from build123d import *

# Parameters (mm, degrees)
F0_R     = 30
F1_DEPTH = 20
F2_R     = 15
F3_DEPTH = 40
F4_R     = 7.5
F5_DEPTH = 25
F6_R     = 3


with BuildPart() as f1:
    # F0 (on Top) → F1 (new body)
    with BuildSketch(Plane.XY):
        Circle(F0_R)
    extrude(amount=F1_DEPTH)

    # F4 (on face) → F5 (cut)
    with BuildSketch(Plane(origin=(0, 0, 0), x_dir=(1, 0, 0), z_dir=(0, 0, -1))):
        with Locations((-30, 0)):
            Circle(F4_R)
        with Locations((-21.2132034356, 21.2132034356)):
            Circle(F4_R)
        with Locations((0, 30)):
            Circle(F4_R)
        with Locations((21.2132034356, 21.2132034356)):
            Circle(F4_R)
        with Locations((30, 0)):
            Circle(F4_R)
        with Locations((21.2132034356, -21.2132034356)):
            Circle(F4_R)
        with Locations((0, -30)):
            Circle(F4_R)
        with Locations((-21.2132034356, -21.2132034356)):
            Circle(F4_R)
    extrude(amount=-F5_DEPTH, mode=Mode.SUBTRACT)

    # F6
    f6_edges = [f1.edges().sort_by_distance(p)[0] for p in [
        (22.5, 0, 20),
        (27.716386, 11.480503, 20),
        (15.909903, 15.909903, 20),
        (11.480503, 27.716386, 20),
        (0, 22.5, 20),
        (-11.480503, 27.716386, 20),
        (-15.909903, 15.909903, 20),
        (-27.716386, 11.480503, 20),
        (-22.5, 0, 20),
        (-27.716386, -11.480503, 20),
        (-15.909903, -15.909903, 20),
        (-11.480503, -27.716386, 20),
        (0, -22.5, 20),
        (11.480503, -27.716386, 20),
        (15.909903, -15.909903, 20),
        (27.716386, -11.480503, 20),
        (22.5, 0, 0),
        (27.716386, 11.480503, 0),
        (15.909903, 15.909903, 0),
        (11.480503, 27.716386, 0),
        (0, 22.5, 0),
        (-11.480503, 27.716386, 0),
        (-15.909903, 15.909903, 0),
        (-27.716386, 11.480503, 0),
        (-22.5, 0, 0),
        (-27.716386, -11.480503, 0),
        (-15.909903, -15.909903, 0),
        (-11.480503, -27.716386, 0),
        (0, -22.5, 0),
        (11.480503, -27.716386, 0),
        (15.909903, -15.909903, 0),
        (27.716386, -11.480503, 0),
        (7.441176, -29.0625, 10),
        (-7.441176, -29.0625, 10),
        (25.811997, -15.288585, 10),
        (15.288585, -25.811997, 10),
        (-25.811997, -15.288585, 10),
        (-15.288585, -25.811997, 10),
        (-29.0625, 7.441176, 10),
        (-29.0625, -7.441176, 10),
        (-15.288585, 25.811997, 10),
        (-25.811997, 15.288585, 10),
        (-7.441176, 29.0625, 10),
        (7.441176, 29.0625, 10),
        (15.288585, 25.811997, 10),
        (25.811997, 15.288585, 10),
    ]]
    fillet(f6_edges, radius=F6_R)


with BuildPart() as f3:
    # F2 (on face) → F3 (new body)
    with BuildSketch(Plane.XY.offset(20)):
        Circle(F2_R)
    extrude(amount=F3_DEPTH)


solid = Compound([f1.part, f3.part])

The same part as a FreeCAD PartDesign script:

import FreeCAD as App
import Part
import Sketcher


def edges_at(feature, points):
    """Names of the edges that pass closest to the given points."""
    edges = feature.Shape.Edges
    near = lambda p: min(range(len(edges)), key=lambda i: edges[i].distToShape(Part.Vertex(*p))[0])
    return sorted({f"Edge{near(p) + 1}" for p in points})

doc = App.newDocument("Part")
body = doc.addObject("PartDesign::Body", "Body")

sketch1 = doc.addObject("Sketcher::SketchObject", "Sketch")
body.addObject(sketch1)
sketch1.AttachmentSupport = (doc.XY_Plane, [""])
sketch1.MapMode = "FlatFace"
sketch1.addGeometry(Part.Circle(App.Vector(0, 0, 0), App.Vector(0, 0, 1), 30), False)
sketch1.addConstraint([
    Sketcher.Constraint("Coincident", 0, 3, -1, 1),
    Sketcher.Constraint("Diameter", 0, 60.0),
])
pad1 = doc.addObject("PartDesign::Pad", "Pad")
body.addObject(pad1)
pad1.Profile = sketch1
pad1.Length = 20

sketch2 = doc.addObject("Sketcher::SketchObject", "Sketch001")
body.addObject(sketch2)
sketch2.AttachmentSupport = (doc.XY_Plane, [""])
sketch2.MapMode = "FlatFace"
sketch2.addGeometry([
    Part.Circle(App.Vector(-30, 0, 0), App.Vector(0, 0, 1), 8),
    Part.Circle(App.Vector(-21, -21, 0), App.Vector(0, 0, 1), 8),
    Part.Circle(App.Vector(0, -30, 0), App.Vector(0, 0, 1), 8),
    Part.Circle(App.Vector(21, -21, 0), App.Vector(0, 0, 1), 8),
    Part.Circle(App.Vector(30, 0, 0), App.Vector(0, 0, 1), 8),
    Part.Circle(App.Vector(21, 21, 0), App.Vector(0, 0, 1), 8),
    Part.Circle(App.Vector(0, 30, 0), App.Vector(0, 0, 1), 8),
    Part.Circle(App.Vector(-21, 21, 0), App.Vector(0, 0, 1), 8),
], False)
sketch2.addConstraint([
    Sketcher.Constraint("Equal", 0, 1),
    Sketcher.Constraint("Equal", 1, 2),
    Sketcher.Constraint("Equal", 2, 3),
    Sketcher.Constraint("Equal", 3, 4),
    Sketcher.Constraint("Equal", 4, 5),
    Sketcher.Constraint("Equal", 5, 6),
    Sketcher.Constraint("Equal", 6, 7),
    Sketcher.Constraint("Symmetric", 0, 3, 4, 3, -1, 1),
    Sketcher.Constraint("Symmetric", 1, 3, 5, 3, -1, 1),
    Sketcher.Constraint("Symmetric", 2, 3, 6, 3, -1, 1),
    Sketcher.Constraint("Symmetric", 3, 3, 7, 3, -1, 1),
    Sketcher.Constraint("Symmetric", 1, 3, 3, 3, -2),
    Sketcher.Constraint("PointOnObject", 0, 3, -1),
    Sketcher.Constraint("PointOnObject", 2, 3, -2),
    Sketcher.Constraint("Diameter", 0, 15.0),
    Sketcher.Constraint("DistanceX", 0, 3, -1, 1, 30.0),
    Sketcher.Constraint("DistanceY", 2, 3, -1, 1, 30.0),
    Sketcher.Constraint("DistanceX", 1, 3, -1, 1, 21.213203),
    Sketcher.Constraint("DistanceY", 1, 3, -1, 1, 21.213203),
])
pocket1 = doc.addObject("PartDesign::Pocket", "Pocket")
body.addObject(pocket1)
pocket1.Profile = sketch2
pocket1.Length = 25
pocket1.Reversed = True
doc.recompute()

fillet = doc.addObject("PartDesign::Fillet", "Fillet")
body.addObject(fillet)
fillet.Base = (pocket1, edges_at(pocket1, [
    (22.5, 0, 20),
    (27.716, 11.481, 20),
    (15.91, 15.91, 20),
    (11.481, 27.716, 20),
    (0, 22.5, 20),
    (-11.481, 27.716, 20),
    (-15.91, 15.91, 20),
    (-27.716, 11.481, 20),
    (-22.5, 0, 20),
    (-27.716, -11.481, 20),
    (-15.91, -15.91, 20),
    (-11.481, -27.716, 20),
    (0, -22.5, 20),
    (11.481, -27.716, 20),
    (15.91, -15.91, 20),
    (27.716, -11.481, 20),
    (22.5, 0, 0),
    (27.716, 11.481, 0),
    (15.91, 15.91, 0),
    (11.481, 27.716, 0),
    (0, 22.5, 0),
    (-11.481, 27.716, 0),
    (-15.91, 15.91, 0),
    (-27.716, 11.481, 0),
    (-22.5, 0, 0),
    (-27.716, -11.481, 0),
    (-15.91, -15.91, 0),
    (-11.481, -27.716, 0),
    (0, -22.5, 0),
    (11.481, -27.716, 0),
    (15.91, -15.91, 0),
    (27.716, -11.481, 0),
    (7.441, -29.062, 10),
    (-7.441, -29.062, 10),
    (25.812, -15.289, 10),
    (15.289, -25.812, 10),
    (-25.812, -15.289, 10),
    (-15.289, -25.812, 10),
    (-29.062, 7.441, 10),
    (-29.062, -7.441, 10),
    (-15.289, 25.812, 10),
    (-25.812, 15.289, 10),
    (-7.441, 29.062, 10),
    (7.441, 29.062, 10),
    (15.289, 25.812, 10),
    (25.812, 15.289, 10),
]))
fillet.Radius = 3
body2 = doc.addObject("PartDesign::Body", "Body001")

sketch3 = doc.addObject("Sketcher::SketchObject", "Sketch002")
body2.addObject(sketch3)
sketch3.AttachmentSupport = (doc.getObject("XY_Plane001"), [""])
sketch3.MapMode = "FlatFace"
sketch3.AttachmentOffset = App.Placement(App.Vector(0, 0, 20), App.Rotation())
sketch3.addGeometry(Part.Circle(App.Vector(0, 0, 0), App.Vector(0, 0, 1), 15), False)
sketch3.addConstraint([
    Sketcher.Constraint("Coincident", 0, 3, -1, 1),
    Sketcher.Constraint("Diameter", 0, 30.0),
])
pad2 = doc.addObject("PartDesign::Pad", "Pad001")
body2.addObject(pad2)
pad2.Profile = sketch3
pad2.Length = 40

doc.recompute()
